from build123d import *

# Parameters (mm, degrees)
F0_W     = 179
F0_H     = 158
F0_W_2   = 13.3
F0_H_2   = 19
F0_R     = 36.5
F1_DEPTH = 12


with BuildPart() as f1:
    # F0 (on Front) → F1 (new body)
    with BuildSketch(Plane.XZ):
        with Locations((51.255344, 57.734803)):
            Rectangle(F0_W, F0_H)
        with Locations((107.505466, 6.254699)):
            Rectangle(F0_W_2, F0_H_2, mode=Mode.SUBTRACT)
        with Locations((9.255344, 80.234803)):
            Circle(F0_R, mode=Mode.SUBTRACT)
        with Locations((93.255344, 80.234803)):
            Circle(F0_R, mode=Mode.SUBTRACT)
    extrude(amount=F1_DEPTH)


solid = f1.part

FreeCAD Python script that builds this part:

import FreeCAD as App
import Part
import Sketcher
from FreeCAD import Vector

doc = App.newDocument("Part")
body = doc.addObject("PartDesign::Body", "Body")

sketch1 = body.newObject("Sketcher::SketchObject", "Sketch")
sketch1.AttachmentSupport = (doc.getObject("XZ_Plane"), [""])
sketch1.MapMode = "FlatFace"
sketch1.addGeometry(Part.LineSegment(Vector(-38, 137, 0), Vector(-38, -21, 0)), False)
sketch1.addGeometry(Part.LineSegment(Vector(-38, -21, 0), Vector(141, -21, 0)), False)
sketch1.addGeometry(Part.LineSegment(Vector(141, -21, 0), Vector(141, 137, 0)), False)
sketch1.addGeometry(Part.LineSegment(Vector(141, 137, 0), Vector(-38, 137, 0)), False)
sketch1.addGeometry(Part.LineSegment(Vector(114, -3, 0), Vector(101, -3, 0)), False)
sketch1.addGeometry(Part.LineSegment(Vector(101, -3, 0), Vector(101, 16, 0)), False)
sketch1.addGeometry(Part.LineSegment(Vector(101, 16, 0), Vector(114, 16, 0)), False)
sketch1.addGeometry(Part.LineSegment(Vector(114, 16, 0), Vector(114, -3, 0)), False)
sketch1.addGeometry(Part.Circle(Vector(9, 80, 0), Vector(0, 0, 1), 36), False)
sketch1.addGeometry(Part.Circle(Vector(93, 80, 0), Vector(0, 0, 1), 36), False)
sketch1.addConstraint(Sketcher.Constraint("Coincident", 0, 2, 1, 1))
sketch1.addConstraint(Sketcher.Constraint("Coincident", 1, 2, 2, 1))
sketch1.addConstraint(Sketcher.Constraint("Coincident", 2, 2, 3, 1))
sketch1.addConstraint(Sketcher.Constraint("Coincident", 3, 2, 0, 1))
sketch1.addConstraint(Sketcher.Constraint("Coincident", 4, 2, 5, 1))
sketch1.addConstraint(Sketcher.Constraint("Coincident", 5, 2, 6, 1))
sketch1.addConstraint(Sketcher.Constraint("Coincident", 6, 2, 7, 1))
sketch1.addConstraint(Sketcher.Constraint("Coincident", 7, 2, 4, 1))
sketch1.addConstraint(Sketcher.Constraint("Vertical", 0))
sketch1.addConstraint(Sketcher.Constraint("Horizontal", 1))
sketch1.addConstraint(Sketcher.Constraint("Vertical", 2))
sketch1.addConstraint(Sketcher.Constraint("Horizontal", 3))
sketch1.addConstraint(Sketcher.Constraint("Horizontal", 4))
sketch1.addConstraint(Sketcher.Constraint("Vertical", 5))
sketch1.addConstraint(Sketcher.Constraint("Horizontal", 6))
sketch1.addConstraint(Sketcher.Constraint("Vertical", 7))
sketch1.addConstraint(Sketcher.Constraint("Equal", 8, 9))
sketch1.addConstraint(Sketcher.Constraint("Horizontal", 8, 3, 9, 3))
sketch1.addConstraint(Sketcher.Constraint("Diameter", 8, 73.0))
sketch1.addConstraint(Sketcher.Constraint("DistanceX", 1, 1, 1, 2, 179.0))
sketch1.addConstraint(Sketcher.Constraint("DistanceY", 0, 2, 0, 1, 158.0))
sketch1.addConstraint(Sketcher.Constraint("DistanceY", 5, 1, 5, 2, 19.0))
sketch1.addConstraint(Sketcher.Constraint("DistanceX", 4, 2, 4, 1, 13.3))
sketch1.addConstraint(Sketcher.Constraint("DistanceX", 8, 3, 9, 3, 84.0))
sketch1.addConstraint(Sketcher.Constraint("DistanceX", 0, 2, 8, 3, 47.5))
sketch1.addConstraint(Sketcher.Constraint("DistanceY", 0, 2, 8, 3, 101.5))
sketch1.addConstraint(Sketcher.Constraint("DistanceY", 4, 2, -1, 1, 3.245301))
sketch1.addConstraint(Sketcher.Constraint("DistanceX", 0, 2, 4, 2, 139.100122))
sketch1.addConstraint(Sketcher.Constraint("DistanceX", -1, 1, 8, 3, 9.255344))
sketch1.addConstraint(Sketcher.Constraint("DistanceY", -1, 1, 8, 3, 80.234803))
pad1 = body.newObject("PartDesign::Pad", "Pad")
pad1.Profile = sketch1
pad1.Length = 12

doc.recompute()
